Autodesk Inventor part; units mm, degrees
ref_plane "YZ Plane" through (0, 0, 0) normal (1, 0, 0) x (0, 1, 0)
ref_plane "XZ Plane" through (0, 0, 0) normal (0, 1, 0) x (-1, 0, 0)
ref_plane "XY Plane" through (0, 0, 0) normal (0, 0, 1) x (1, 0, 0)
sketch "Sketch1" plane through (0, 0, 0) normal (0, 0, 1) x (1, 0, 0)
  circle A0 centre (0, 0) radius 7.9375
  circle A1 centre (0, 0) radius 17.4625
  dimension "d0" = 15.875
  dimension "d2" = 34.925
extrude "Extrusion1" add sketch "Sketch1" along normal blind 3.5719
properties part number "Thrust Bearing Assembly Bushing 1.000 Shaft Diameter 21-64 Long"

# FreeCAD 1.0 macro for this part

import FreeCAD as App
import Part
import Sketcher
from FreeCAD import Vector
Q = App.Units.Quantity

doc = App.newDocument("Part")
body = doc.addObject("PartDesign::Body", "Body")

sketch1 = body.newObject("Sketcher::SketchObject", "Sketch")
sketch1.AttachmentSupport = (doc.getObject("XY_Plane"), [""])
sketch1.MapMode = "FlatFace"
sketch1.addGeometry(Part.Circle(Vector(0, 0, 0), Vector(0, 0, 1), 17), False)
sketch1.addGeometry(Part.Circle(Vector(0, 0, 0), Vector(0, 0, 1), 8), False)
sketch1.addConstraint(Sketcher.Constraint("Coincident", 0, 3, -1, 1))
sketch1.addConstraint(Sketcher.Constraint("Coincident", 1, 3, -1, 1))
sketch1.addConstraint(Sketcher.Constraint("Diameter", 0, Q("1.375 in")))
sketch1.addConstraint(Sketcher.Constraint("Diameter", 1, Q("0.625 in")))
pad1 = body.newObject("PartDesign::Pad", "Pad")
pad1.Profile = sketch1
pad1.Length = Q("0.140626 in")

doc.recompute()
